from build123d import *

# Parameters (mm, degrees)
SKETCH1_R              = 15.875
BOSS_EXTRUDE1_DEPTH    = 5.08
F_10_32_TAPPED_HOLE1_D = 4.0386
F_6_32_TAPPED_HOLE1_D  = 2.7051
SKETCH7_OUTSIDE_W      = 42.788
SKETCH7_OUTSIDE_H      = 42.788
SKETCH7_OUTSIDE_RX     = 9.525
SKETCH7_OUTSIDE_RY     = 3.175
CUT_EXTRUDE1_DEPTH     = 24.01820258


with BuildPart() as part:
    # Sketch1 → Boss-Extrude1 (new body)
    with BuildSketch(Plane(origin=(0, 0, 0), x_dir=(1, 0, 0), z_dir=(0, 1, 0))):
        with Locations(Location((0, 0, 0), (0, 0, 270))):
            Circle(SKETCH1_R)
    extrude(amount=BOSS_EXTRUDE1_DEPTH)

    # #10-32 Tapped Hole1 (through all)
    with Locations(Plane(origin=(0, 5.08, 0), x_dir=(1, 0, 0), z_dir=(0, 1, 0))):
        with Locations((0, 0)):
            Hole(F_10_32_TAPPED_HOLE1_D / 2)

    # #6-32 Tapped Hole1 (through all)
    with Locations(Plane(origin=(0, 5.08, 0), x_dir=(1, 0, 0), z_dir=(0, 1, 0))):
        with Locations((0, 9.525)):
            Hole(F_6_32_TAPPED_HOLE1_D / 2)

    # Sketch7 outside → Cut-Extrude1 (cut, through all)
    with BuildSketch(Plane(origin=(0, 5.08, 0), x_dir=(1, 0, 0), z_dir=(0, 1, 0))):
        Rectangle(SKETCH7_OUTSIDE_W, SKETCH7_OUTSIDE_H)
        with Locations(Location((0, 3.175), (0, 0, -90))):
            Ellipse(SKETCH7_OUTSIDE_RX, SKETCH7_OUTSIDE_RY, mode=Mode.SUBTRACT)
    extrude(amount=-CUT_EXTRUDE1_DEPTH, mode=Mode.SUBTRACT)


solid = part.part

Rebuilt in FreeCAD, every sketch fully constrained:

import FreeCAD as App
import Part
import Sketcher

V = App.Vector
Q = App.Units.Quantity


def add_polygon(sketch, points):
    """Adds a closed chain of lines whose ends are joined by coincident constraints."""
    first, n = sketch.GeometryCount, len(points)
    for a, b in zip(points, points[1:] + points[:1]):
        sketch.addGeometry(Part.LineSegment(App.Vector(*a, 0), App.Vector(*b, 0)), False)
    for i in range(n):
        sketch.addConstraint(Sketcher.Constraint("Coincident", first + i, 2, first + (i + 1) % n, 1))

doc = App.newDocument("Part")
body = doc.addObject("PartDesign::Body", "Body")

# Sketch on XZ plane
sketch1 = doc.addObject("Sketcher::SketchObject", "Sketch")
body.addObject(sketch1)
sketch1.AttachmentSupport = (doc.XZ_Plane, [""])
sketch1.MapMode = "FlatFace"
sketch1.addGeometry(Part.Circle(V(0, 0, 0), V(0, 0, 1), 16), False)
sketch1.addConstraint([
    Sketcher.Constraint("Coincident", 0, 3, -1, 1),
    Sketcher.Constraint("Diameter", 0, Q("1.25 in")),
])
pad1 = doc.addObject("PartDesign::Pad", "Pad")
body.addObject(pad1)
pad1.Profile = sketch1
pad1.Length = Q("0.2 in")
pad1.Reversed = True

# Sketch on XZ plane
sketch2 = doc.addObject("Sketcher::SketchObject", "Sketch001")
body.addObject(sketch2)
sketch2.AttachmentSupport = (doc.XZ_Plane, [""])
sketch2.MapMode = "FlatFace"
sketch2.AttachmentOffset = App.Placement(V(0, 0, -0.2 * 25.4), App.Rotation())
sketch2.addGeometry(Part.Circle(V(0, 0, 0), V(0, 0, 1), 2), False)
sketch2.addConstraint([
    Sketcher.Constraint("Coincident", 0, 3, -1, 1),
    Sketcher.Constraint("Diameter", 0, Q("0.159 in")),
])
doc.recompute()
hole = doc.addObject("PartDesign::Hole", "Hole")
body.addObject(hole)
hole.Profile = sketch2
hole.ThreadType = "None"
hole.Diameter = Q("0.159 in")
hole.DepthType = "ThroughAll"
hole.Reversed = True

# Sketch on XZ plane
sketch3 = doc.addObject("Sketcher::SketchObject", "Sketch002")
body.addObject(sketch3)
sketch3.AttachmentSupport = (doc.XZ_Plane, [""])
sketch3.MapMode = "FlatFace"
sketch3.AttachmentOffset = App.Placement(V(0, 0, -0.2 * 25.4), App.Rotation())
sketch3.addGeometry(Part.Circle(V(0, -9.5, 0), V(0, 0, 1), 1.4), False)
sketch3.addConstraint([
    Sketcher.Constraint("PointOnObject", 0, 3, -2),
    Sketcher.Constraint("Diameter", 0, Q("0.1065 in")),
    Sketcher.Constraint("DistanceY", 0, 3, -1, 1, Q("0.375 in")),
])
doc.recompute()
hole2 = doc.addObject("PartDesign::Hole", "Hole001")
body.addObject(hole2)
hole2.Profile = sketch3
hole2.ThreadType = "None"
hole2.Diameter = Q("0.1065 in")
hole2.DepthType = "ThroughAll"
hole2.Reversed = True

# Sketch on XZ plane
sketch4 = doc.addObject("Sketcher::SketchObject", "Sketch003")
body.addObject(sketch4)
sketch4.AttachmentSupport = (doc.XZ_Plane, [""])
sketch4.MapMode = "FlatFace"
sketch4.AttachmentOffset = App.Placement(V(0, 0, -0.2 * 25.4), App.Rotation())
add_polygon(sketch4, [(-21.394, -21.394), (-21.394, 21.394), (21.394, 21.394), (21.394, -21.394)])  # lines 0-3
sketch4.addGeometry(Part.Ellipse(V(0, 6.35, 0), V(-3.175, -3.175, 0), V(0, -3.175, 0)), False)  # 4
sketch4.addConstraint([
    Sketcher.Constraint("Block", 4),
    Sketcher.Constraint("Vertical", 0),
    Sketcher.Constraint("Horizontal", 1),
    Sketcher.Constraint("Vertical", 2),
    Sketcher.Constraint("Horizontal", 3),
    Sketcher.Constraint("Symmetric", 0, 2, 2, 2, -1, 1),
    Sketcher.Constraint("Equal", 3, 0),
    Sketcher.Constraint("DistanceX", 1, 1, 1, 2, 42.788),
])
pocket1 = doc.addObject("PartDesign::Pocket", "Pocket")
body.addObject(pocket1)
pocket1.Profile = sketch4
pocket1.Type = "ThroughAll"
pocket1.Reversed = True

doc.recompute()
